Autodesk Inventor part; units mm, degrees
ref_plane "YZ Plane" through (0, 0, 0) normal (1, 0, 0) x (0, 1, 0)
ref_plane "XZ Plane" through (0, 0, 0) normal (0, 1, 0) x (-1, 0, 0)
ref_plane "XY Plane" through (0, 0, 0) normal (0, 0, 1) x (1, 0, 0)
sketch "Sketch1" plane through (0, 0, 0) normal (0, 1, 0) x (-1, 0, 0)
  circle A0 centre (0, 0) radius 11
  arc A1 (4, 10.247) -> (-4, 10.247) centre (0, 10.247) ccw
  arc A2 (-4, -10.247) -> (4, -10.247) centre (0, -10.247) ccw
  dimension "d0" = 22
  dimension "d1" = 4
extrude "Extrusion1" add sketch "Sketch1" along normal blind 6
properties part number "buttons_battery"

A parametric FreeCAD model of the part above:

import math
import FreeCAD as App
import Part
import Sketcher

doc = App.newDocument("Part")
params = doc.addObject("Spreadsheet::Sheet", "Params")
for row, (alias, value) in enumerate([
    ("sketch1_radius", "11 mm"),
    ("sketch1_radius2", "4 mm"),
    ("pad1_length", "6 mm"),
], start=1):
    params.set(f"A{row}", alias)
    params.set(f"B{row}", "=" + value)
    params.setAlias(f"B{row}", alias)

body = doc.addObject("PartDesign::Body", "Body")

# Sketch on XZ plane
sketch1 = body.newObject("Sketcher::SketchObject", "Sketch")
sketch1.AttachmentSupport = (doc.getObject("XZ_Plane"), [""])
sketch1.MapMode = "FlatFace"
sketch1.addGeometry([
    Part.ArcOfCircle(Part.Circle(App.Vector(0, 0, 0), App.Vector(0, 0, 1), 11), math.radians(111), math.radians(249)),
    Part.ArcOfCircle(Part.Circle(App.Vector(0, 10.2, 0), App.Vector(0, 0, 1), 4), math.radians(0), math.radians(180)),
    Part.ArcOfCircle(Part.Circle(App.Vector(0, 0, 0), App.Vector(0, 0, 1), 11), math.radians(-69), math.radians(69)),
    Part.ArcOfCircle(Part.Circle(App.Vector(0, -10.2, 0), App.Vector(0, 0, 1), 4), math.radians(180), math.radians(360)),
], False)
sketch1.addConstraint([
    Sketcher.Constraint("Coincident", 0, 1, 1, 2),
    Sketcher.Constraint("Coincident", 1, 1, 2, 2),
    Sketcher.Constraint("Coincident", 2, 1, 3, 2),
    Sketcher.Constraint("Coincident", 3, 1, 0, 2),
    Sketcher.Constraint("Coincident", 0, 3, -1, 1),
    Sketcher.Constraint("Coincident", 2, 3, -1, 1),
    Sketcher.Constraint("Equal", 0, 2),
    Sketcher.Constraint("Equal", 1, 3),
    Sketcher.Constraint("Symmetric", 1, 3, 3, 3, -1, 1),
    Sketcher.Constraint("PointOnObject", 1, 3, -2),
    Sketcher.Constraint("Horizontal", 1, 3, 0, 1),
    Sketcher.Constraint("Radius", 0, 11.0),
    Sketcher.Constraint("Radius", 1, 4.0),
])
sketch1.setExpression("Constraints[11]", "Params.sketch1_radius")
sketch1.setExpression("Constraints[12]", "Params.sketch1_radius2")
pad1 = body.newObject("PartDesign::Pad", "Pad")
pad1.Profile = sketch1
pad1.setExpression("Length", "Params.pad1_length")
pad1.Reversed = True

doc.recompute()
